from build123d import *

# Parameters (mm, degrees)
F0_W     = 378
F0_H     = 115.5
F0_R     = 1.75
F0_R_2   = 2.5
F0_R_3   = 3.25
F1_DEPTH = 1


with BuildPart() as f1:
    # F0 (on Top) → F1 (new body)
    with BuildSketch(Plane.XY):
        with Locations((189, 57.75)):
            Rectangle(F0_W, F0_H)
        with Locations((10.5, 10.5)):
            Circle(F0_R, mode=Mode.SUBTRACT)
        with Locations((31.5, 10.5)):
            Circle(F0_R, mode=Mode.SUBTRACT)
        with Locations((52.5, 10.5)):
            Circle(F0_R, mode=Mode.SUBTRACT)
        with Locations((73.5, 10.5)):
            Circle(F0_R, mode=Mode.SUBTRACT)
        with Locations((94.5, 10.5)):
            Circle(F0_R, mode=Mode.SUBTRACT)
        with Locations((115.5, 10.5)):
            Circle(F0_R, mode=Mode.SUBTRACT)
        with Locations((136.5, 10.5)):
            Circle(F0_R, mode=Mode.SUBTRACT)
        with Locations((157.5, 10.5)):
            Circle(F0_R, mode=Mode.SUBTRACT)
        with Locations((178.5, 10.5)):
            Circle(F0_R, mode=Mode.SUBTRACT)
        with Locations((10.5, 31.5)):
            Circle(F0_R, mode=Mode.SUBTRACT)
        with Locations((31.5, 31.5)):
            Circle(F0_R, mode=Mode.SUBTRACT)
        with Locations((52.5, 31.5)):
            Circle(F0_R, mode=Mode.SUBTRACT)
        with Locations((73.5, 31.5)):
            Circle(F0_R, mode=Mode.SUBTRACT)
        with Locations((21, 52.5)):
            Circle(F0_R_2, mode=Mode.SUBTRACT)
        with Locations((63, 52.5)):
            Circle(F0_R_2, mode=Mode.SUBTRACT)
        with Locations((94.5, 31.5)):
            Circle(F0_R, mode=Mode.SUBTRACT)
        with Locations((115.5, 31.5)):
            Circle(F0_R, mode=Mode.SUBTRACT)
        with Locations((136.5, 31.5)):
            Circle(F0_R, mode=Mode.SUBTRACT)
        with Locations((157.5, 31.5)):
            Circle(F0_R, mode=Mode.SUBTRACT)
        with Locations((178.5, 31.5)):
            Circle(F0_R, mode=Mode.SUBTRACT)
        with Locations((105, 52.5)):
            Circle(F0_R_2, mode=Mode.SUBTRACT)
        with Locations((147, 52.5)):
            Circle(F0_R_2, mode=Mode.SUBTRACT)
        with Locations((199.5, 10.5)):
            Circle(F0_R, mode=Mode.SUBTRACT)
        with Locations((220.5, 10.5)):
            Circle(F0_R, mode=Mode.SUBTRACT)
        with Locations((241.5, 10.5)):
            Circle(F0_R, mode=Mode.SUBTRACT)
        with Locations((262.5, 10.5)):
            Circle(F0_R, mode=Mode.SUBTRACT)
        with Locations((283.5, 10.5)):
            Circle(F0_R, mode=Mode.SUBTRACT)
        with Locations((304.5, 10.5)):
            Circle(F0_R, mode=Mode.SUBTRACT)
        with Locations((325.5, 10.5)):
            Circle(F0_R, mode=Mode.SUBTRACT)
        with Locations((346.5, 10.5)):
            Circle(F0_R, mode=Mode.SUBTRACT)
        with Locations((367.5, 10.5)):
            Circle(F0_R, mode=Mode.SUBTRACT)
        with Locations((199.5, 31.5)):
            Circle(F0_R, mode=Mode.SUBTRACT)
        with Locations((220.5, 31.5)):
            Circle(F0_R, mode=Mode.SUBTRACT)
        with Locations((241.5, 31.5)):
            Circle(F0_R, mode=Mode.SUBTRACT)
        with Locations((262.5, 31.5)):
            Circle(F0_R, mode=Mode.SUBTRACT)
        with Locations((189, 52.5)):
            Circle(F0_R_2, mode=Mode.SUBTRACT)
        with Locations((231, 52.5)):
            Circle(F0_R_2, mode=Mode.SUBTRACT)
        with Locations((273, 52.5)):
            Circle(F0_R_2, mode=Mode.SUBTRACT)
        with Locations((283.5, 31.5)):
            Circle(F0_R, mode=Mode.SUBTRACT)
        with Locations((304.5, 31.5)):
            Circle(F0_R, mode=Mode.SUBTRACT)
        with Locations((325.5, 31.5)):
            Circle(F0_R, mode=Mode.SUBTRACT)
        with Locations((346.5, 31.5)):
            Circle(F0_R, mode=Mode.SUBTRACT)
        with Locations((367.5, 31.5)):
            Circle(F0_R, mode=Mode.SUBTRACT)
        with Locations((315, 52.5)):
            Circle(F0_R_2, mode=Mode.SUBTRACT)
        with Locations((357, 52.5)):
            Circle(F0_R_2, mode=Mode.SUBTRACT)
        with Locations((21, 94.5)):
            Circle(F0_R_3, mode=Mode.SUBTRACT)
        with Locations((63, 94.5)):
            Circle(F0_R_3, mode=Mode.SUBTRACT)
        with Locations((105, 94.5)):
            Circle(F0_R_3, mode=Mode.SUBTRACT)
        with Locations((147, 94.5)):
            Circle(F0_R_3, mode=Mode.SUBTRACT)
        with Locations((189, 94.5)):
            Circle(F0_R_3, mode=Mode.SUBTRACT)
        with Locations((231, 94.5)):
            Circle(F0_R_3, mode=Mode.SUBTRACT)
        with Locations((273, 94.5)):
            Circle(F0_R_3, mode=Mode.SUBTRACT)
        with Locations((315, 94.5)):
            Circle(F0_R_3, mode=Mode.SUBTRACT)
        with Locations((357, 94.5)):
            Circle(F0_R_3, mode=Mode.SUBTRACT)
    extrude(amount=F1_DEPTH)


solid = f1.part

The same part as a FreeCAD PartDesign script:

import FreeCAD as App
import Part
import Sketcher

doc = App.newDocument("Part")
params = doc.addObject("Spreadsheet::Sheet", "Params")
for row, (alias, value) in enumerate([
    ("sketch1_diameter", "5 mm"),
    ("sketch1_diameter2", "3.5 mm"),
    ("sketch1_diameter3", "6.5 mm"),
    ("sketch1_width", "378 mm"),
    ("sketch1_height", "115.5 mm"),
    ("pad1_length", "1 mm"),
], start=1):
    params.set(f"A{row}", alias)
    params.set(f"B{row}", "=" + value)
    params.setAlias(f"B{row}", alias)

body = doc.addObject("PartDesign::Body", "Body")

sketch1 = body.newObject("Sketcher::SketchObject", "Sketch")
sketch1.AttachmentSupport = (doc.getObject("XY_Plane"), [""])
sketch1.MapMode = "FlatFace"
sketch1.addGeometry(Part.LineSegment(App.Vector(0, 115.5, 0), App.Vector(0, 0, 0)), False)
sketch1.addGeometry(Part.LineSegment(App.Vector(0, 0, 0), App.Vector(378, 0, 0)), False)
sketch1.addGeometry(Part.LineSegment(App.Vector(378, 0, 0), App.Vector(378, 115.5, 0)), False)
sketch1.addGeometry(Part.LineSegment(App.Vector(378, 115.5, 0), App.Vector(0, 115.5, 0)), False)
sketch1.addGeometry(Part.Circle(App.Vector(10.5, 10.5, 0), App.Vector(0, 0, 1), 1.75), False)
sketch1.addGeometry(Part.Circle(App.Vector(31.5, 10.5, 0), App.Vector(0, 0, 1), 1.75), False)
sketch1.addGeometry(Part.Circle(App.Vector(52.5, 10.5, 0), App.Vector(0, 0, 1), 1.75), False)
sketch1.addGeometry(Part.Circle(App.Vector(73.5, 10.5, 0), App.Vector(0, 0, 1), 1.75), False)
sketch1.addGeometry(Part.Circle(App.Vector(94.5, 10.5, 0), App.Vector(0, 0, 1), 1.75), False)
sketch1.addGeometry(Part.Circle(App.Vector(115.5, 10.5, 0), App.Vector(0, 0, 1), 1.75), False)
sketch1.addGeometry(Part.Circle(App.Vector(136.5, 10.5, 0), App.Vector(0, 0, 1), 1.75), False)
sketch1.addGeometry(Part.Circle(App.Vector(157.5, 10.5, 0), App.Vector(0, 0, 1), 1.75), False)
sketch1.addGeometry(Part.Circle(App.Vector(178.5, 10.5, 0), App.Vector(0, 0, 1), 1.75), False)
sketch1.addGeometry(Part.Circle(App.Vector(10.5, 31.5, 0), App.Vector(0, 0, 1), 1.75), False)
sketch1.addGeometry(Part.Circle(App.Vector(31.5, 31.5, 0), App.Vector(0, 0, 1), 1.75), False)
sketch1.addGeometry(Part.Circle(App.Vector(52.5, 31.5, 0), App.Vector(0, 0, 1), 1.75), False)
sketch1.addGeometry(Part.Circle(App.Vector(73.5, 31.5, 0), App.Vector(0, 0, 1), 1.75), False)
sketch1.addGeometry(Part.Circle(App.Vector(94.5, 31.5, 0), App.Vector(0, 0, 1), 1.75), False)
sketch1.addGeometry(Part.Circle(App.Vector(21, 52.5, 0), App.Vector(0, 0, 1), 2.5), False)
sketch1.addGeometry(Part.Circle(App.Vector(63, 52.5, 0), App.Vector(0, 0, 1), 2.5), False)
sketch1.addGeometry(Part.Circle(App.Vector(115.5, 31.5, 0), App.Vector(0, 0, 1), 1.75), False)
sketch1.addGeometry(Part.Circle(App.Vector(136.5, 31.5, 0), App.Vector(0, 0, 1), 1.75), False)
sketch1.addGeometry(Part.Circle(App.Vector(157.5, 31.5, 0), App.Vector(0, 0, 1), 1.75), False)
sketch1.addGeometry(Part.Circle(App.Vector(178.5, 31.5, 0), App.Vector(0, 0, 1), 1.75), False)
sketch1.addGeometry(Part.Circle(App.Vector(105, 52.5, 0), App.Vector(0, 0, 1), 2.5), False)
sketch1.addGeometry(Part.Circle(App.Vector(147, 52.5, 0), App.Vector(0, 0, 1), 2.5), False)
sketch1.addGeometry(Part.Circle(App.Vector(199.5, 10.5, 0), App.Vector(0, 0, 1), 1.75), False)
sketch1.addGeometry(Part.Circle(App.Vector(220.5, 10.5, 0), App.Vector(0, 0, 1), 1.75), False)
sketch1.addGeometry(Part.Circle(App.Vector(241.5, 10.5, 0), App.Vector(0, 0, 1), 1.75), False)
sketch1.addGeometry(Part.Circle(App.Vector(262.5, 10.5, 0), App.Vector(0, 0, 1), 1.75), False)
sketch1.addGeometry(Part.Circle(App.Vector(283.5, 10.5, 0), App.Vector(0, 0, 1), 1.75), False)
sketch1.addGeometry(Part.Circle(App.Vector(304.5, 10.5, 0), App.Vector(0, 0, 1), 1.75), False)
sketch1.addGeometry(Part.Circle(App.Vector(325.5, 10.5, 0), App.Vector(0, 0, 1), 1.75), False)
sketch1.addGeometry(Part.Circle(App.Vector(346.5, 10.5, 0), App.Vector(0, 0, 1), 1.75), False)
sketch1.addGeometry(Part.Circle(App.Vector(367.5, 10.5, 0), App.Vector(0, 0, 1), 1.75), False)
sketch1.addGeometry(Part.Circle(App.Vector(199.5, 31.5, 0), App.Vector(0, 0, 1), 1.75), False)
sketch1.addGeometry(Part.Circle(App.Vector(220.5, 31.5, 0), App.Vector(0, 0, 1), 1.75), False)
sketch1.addGeometry(Part.Circle(App.Vector(241.5, 31.5, 0), App.Vector(0, 0, 1), 1.75), False)
sketch1.addGeometry(Part.Circle(App.Vector(262.5, 31.5, 0), App.Vector(0, 0, 1), 1.75), False)
sketch1.addGeometry(Part.Circle(App.Vector(189, 52.5, 0), App.Vector(0, 0, 1), 2.5), False)
sketch1.addGeometry(Part.Circle(App.Vector(231, 52.5, 0), App.Vector(0, 0, 1), 2.5), False)
sketch1.addGeometry(Part.Circle(App.Vector(273, 52.5, 0), App.Vector(0, 0, 1), 2.5), False)
sketch1.addGeometry(Part.Circle(App.Vector(283.5, 31.5, 0), App.Vector(0, 0, 1), 1.75), False)
sketch1.addGeometry(Part.Circle(App.Vector(304.5, 31.5, 0), App.Vector(0, 0, 1), 1.75), False)
sketch1.addGeometry(Part.Circle(App.Vector(325.5, 31.5, 0), App.Vector(0, 0, 1), 1.75), False)
sketch1.addGeometry(Part.Circle(App.Vector(346.5, 31.5, 0), App.Vector(0, 0, 1), 1.75), False)
sketch1.addGeometry(Part.Circle(App.Vector(367.5, 31.5, 0), App.Vector(0, 0, 1), 1.75), False)
sketch1.addGeometry(Part.Circle(App.Vector(315, 52.5, 0), App.Vector(0, 0, 1), 2.5), False)
sketch1.addGeometry(Part.Circle(App.Vector(357, 52.5, 0), App.Vector(0, 0, 1), 2.5), False)
sketch1.addGeometry(Part.Circle(App.Vector(21, 94.5, 0), App.Vector(0, 0, 1), 3.25), False)
sketch1.addGeometry(Part.Circle(App.Vector(63, 94.5, 0), App.Vector(0, 0, 1), 3.25), False)
sketch1.addGeometry(Part.Circle(App.Vector(105, 94.5, 0), App.Vector(0, 0, 1), 3.25), False)
sketch1.addGeometry(Part.Circle(App.Vector(147, 94.5, 0), App.Vector(0, 0, 1), 3.25), False)
sketch1.addGeometry(Part.Circle(App.Vector(189, 94.5, 0), App.Vector(0, 0, 1), 3.25), False)
sketch1.addGeometry(Part.Circle(App.Vector(231, 94.5, 0), App.Vector(0, 0, 1), 3.25), False)
sketch1.addGeometry(Part.Circle(App.Vector(273, 94.5, 0), App.Vector(0, 0, 1), 3.25), False)
sketch1.addGeometry(Part.Circle(App.Vector(315, 94.5, 0), App.Vector(0, 0, 1), 3.25), False)
sketch1.addGeometry(Part.Circle(App.Vector(357, 94.5, 0), App.Vector(0, 0, 1), 3.25), False)
sketch1.addConstraint(Sketcher.Constraint("Coincident", 0, 2, 1, 1))
sketch1.addConstraint(Sketcher.Constraint("Coincident", 1, 2, 2, 1))
sketch1.addConstraint(Sketcher.Constraint("Coincident", 2, 2, 3, 1))
sketch1.addConstraint(Sketcher.Constraint("Coincident", 3, 2, 0, 1))
sketch1.addConstraint(Sketcher.Constraint("Vertical", 0))
sketch1.addConstraint(Sketcher.Constraint("Horizontal", 1))
sketch1.addConstraint(Sketcher.Constraint("Vertical", 2))
sketch1.addConstraint(Sketcher.Constraint("Horizontal", 3))
sketch1.addConstraint(Sketcher.Constraint("Coincident", 0, 2, -1, 1))
sketch1.addConstraint(Sketcher.Constraint("Equal", 4, 5))
sketch1.addConstraint(Sketcher.Constraint("Equal", 5, 6))
sketch1.addConstraint(Sketcher.Constraint("Equal", 6, 7))
sketch1.addConstraint(Sketcher.Constraint("Equal", 7, 8))
sketch1.addConstraint(Sketcher.Constraint("Equal", 8, 9))
sketch1.addConstraint(Sketcher.Constraint("Equal", 9, 10))
sketch1.addConstraint(Sketcher.Constraint("Equal", 10, 11))
sketch1.addConstraint(Sketcher.Constraint("Equal", 11, 12))
sketch1.addConstraint(Sketcher.Constraint("Equal", 12, 13))
sketch1.addConstraint(Sketcher.Constraint("Equal", 13, 14))
sketch1.addConstraint(Sketcher.Constraint("Equal", 14, 15))
sketch1.addConstraint(Sketcher.Constraint("Equal", 15, 16))
sketch1.addConstraint(Sketcher.Constraint("Equal", 16, 17))
sketch1.addConstraint(Sketcher.Constraint("Equal", 18, 19))
sketch1.addConstraint(Sketcher.Constraint("Equal", 17, 20))
sketch1.addConstraint(Sketcher.Constraint("Equal", 20, 21))
sketch1.addConstraint(Sketcher.Constraint("Equal", 21, 22))
sketch1.addConstraint(Sketcher.Constraint("Equal", 22, 23))
sketch1.addConstraint(Sketcher.Constraint("Equal", 19, 24))
sketch1.addConstraint(Sketcher.Constraint("Equal", 24, 25))
sketch1.addConstraint(Sketcher.Constraint("Equal", 23, 26))
sketch1.addConstraint(Sketcher.Constraint("Equal", 26, 27))
sketch1.addConstraint(Sketcher.Constraint("Equal", 27, 28))
sketch1.addConstraint(Sketcher.Constraint("Equal", 28, 29))
sketch1.addConstraint(Sketcher.Constraint("Equal", 29, 30))
sketch1.addConstraint(Sketcher.Constraint("Equal", 30, 31))
sketch1.addConstraint(Sketcher.Constraint("Equal", 31, 32))
sketch1.addConstraint(Sketcher.Constraint("Equal", 32, 33))
sketch1.addConstraint(Sketcher.Constraint("Equal", 33, 34))
sketch1.addConstraint(Sketcher.Constraint("Equal", 34, 35))
sketch1.addConstraint(Sketcher.Constraint("Equal", 35, 36))
sketch1.addConstraint(Sketcher.Constraint("Equal", 36, 37))
sketch1.addConstraint(Sketcher.Constraint("Equal", 37, 38))
sketch1.addConstraint(Sketcher.Constraint("Equal", 25, 39))
sketch1.addConstraint(Sketcher.Constraint("Equal", 39, 40))
sketch1.addConstraint(Sketcher.Constraint("Equal", 40, 41))
sketch1.addConstraint(Sketcher.Constraint("Equal", 38, 42))
sketch1.addConstraint(Sketcher.Constraint("Equal", 42, 43))
sketch1.addConstraint(Sketcher.Constraint("Equal", 43, 44))
sketch1.addConstraint(Sketcher.Constraint("Equal", 44, 45))
sketch1.addConstraint(Sketcher.Constraint("Equal", 45, 46))
sketch1.addConstraint(Sketcher.Constraint("Equal", 41, 47))
sketch1.addConstraint(Sketcher.Constraint("Equal", 47, 48))
sketch1.addConstraint(Sketcher.Constraint("Equal", 49, 50))
sketch1.addConstraint(Sketcher.Constraint("Equal", 50, 51))
sketch1.addConstraint(Sketcher.Constraint("Equal", 51, 52))
sketch1.addConstraint(Sketcher.Constraint("Equal", 52, 53))
sketch1.addConstraint(Sketcher.Constraint("Equal", 53, 54))
sketch1.addConstraint(Sketcher.Constraint("Equal", 54, 55))
sketch1.addConstraint(Sketcher.Constraint("Equal", 55, 56))
sketch1.addConstraint(Sketcher.Constraint("Equal", 56, 57))
sketch1.addConstraint(Sketcher.Constraint("Horizontal", 4, 3, 5, 3))
sketch1.addConstraint(Sketcher.Constraint("Horizontal", 5, 3, 6, 3))
sketch1.addConstraint(Sketcher.Constraint("Horizontal", 6, 3, 7, 3))
sketch1.addConstraint(Sketcher.Constraint("Horizontal", 7, 3, 8, 3))
sketch1.addConstraint(Sketcher.Constraint("Horizontal", 8, 3, 9, 3))
sketch1.addConstraint(Sketcher.Constraint("Horizontal", 9, 3, 10, 3))
sketch1.addConstraint(Sketcher.Constraint("Horizontal", 10, 3, 11, 3))
sketch1.addConstraint(Sketcher.Constraint("Horizontal", 11, 3, 12, 3))
sketch1.addConstraint(Sketcher.Constraint("Horizontal", 13, 3, 14, 3))
sketch1.addConstraint(Sketcher.Constraint("Horizontal", 14, 3, 15, 3))
sketch1.addConstraint(Sketcher.Constraint("Horizontal", 15, 3, 16, 3))
sketch1.addConstraint(Sketcher.Constraint("Horizontal", 16, 3, 17, 3))
sketch1.addConstraint(Sketcher.Constraint("Horizontal", 18, 3, 19, 3))
sketch1.addConstraint(Sketcher.Constraint("Horizontal", 17, 3, 20, 3))
sketch1.addConstraint(Sketcher.Constraint("Horizontal", 20, 3, 21, 3))
sketch1.addConstraint(Sketcher.Constraint("Horizontal", 21, 3, 22, 3))
sketch1.addConstraint(Sketcher.Constraint("Horizontal", 22, 3, 23, 3))
sketch1.addConstraint(Sketcher.Constraint("Horizontal", 19, 3, 24, 3))
sketch1.addConstraint(Sketcher.Constraint("Horizontal", 24, 3, 25, 3))
sketch1.addConstraint(Sketcher.Constraint("Horizontal", 12, 3, 26, 3))
sketch1.addConstraint(Sketcher.Constraint("Horizontal", 26, 3, 27, 3))
sketch1.addConstraint(Sketcher.Constraint("Horizontal", 27, 3, 28, 3))
sketch1.addConstraint(Sketcher.Constraint("Horizontal", 28, 3, 29, 3))
sketch1.addConstraint(Sketcher.Constraint("Horizontal", 29, 3, 30, 3))
sketch1.addConstraint(Sketcher.Constraint("Horizontal", 30, 3, 31, 3))
sketch1.addConstraint(Sketcher.Constraint("Horizontal", 31, 3, 32, 3))
sketch1.addConstraint(Sketcher.Constraint("Horizontal", 32, 3, 33, 3))
sketch1.addConstraint(Sketcher.Constraint("Horizontal", 33, 3, 34, 3))
sketch1.addConstraint(Sketcher.Constraint("Horizontal", 23, 3, 35, 3))
sketch1.addConstraint(Sketcher.Constraint("Horizontal", 35, 3, 36, 3))
sketch1.addConstraint(Sketcher.Constraint("Horizontal", 36, 3, 37, 3))
sketch1.addConstraint(Sketcher.Constraint("Horizontal", 37, 3, 38, 3))
sketch1.addConstraint(Sketcher.Constraint("Horizontal", 25, 3, 39, 3))
sketch1.addConstraint(Sketcher.Constraint("Horizontal", 39, 3, 40, 3))
sketch1.addConstraint(Sketcher.Constraint("Horizontal", 40, 3, 41, 3))
sketch1.addConstraint(Sketcher.Constraint("Horizontal", 38, 3, 42, 3))
sketch1.addConstraint(Sketcher.Constraint("Horizontal", 42, 3, 43, 3))
sketch1.addConstraint(Sketcher.Constraint("Horizontal", 43, 3, 44, 3))
sketch1.addConstraint(Sketcher.Constraint("Horizontal", 44, 3, 45, 3))
sketch1.addConstraint(Sketcher.Constraint("Horizontal", 45, 3, 46, 3))
sketch1.addConstraint(Sketcher.Constraint("Horizontal", 41, 3, 47, 3))
sketch1.addConstraint(Sketcher.Constraint("Horizontal", 47, 3, 48, 3))
sketch1.addConstraint(Sketcher.Constraint("Horizontal", 49, 3, 50, 3))
sketch1.addConstraint(Sketcher.Constraint("Horizontal", 50, 3, 51, 3))
sketch1.addConstraint(Sketcher.Constraint("Horizontal", 51, 3, 52, 3))
sketch1.addConstraint(Sketcher.Constraint("Horizontal", 52, 3, 53, 3))
sketch1.addConstraint(Sketcher.Constraint("Horizontal", 53, 3, 54, 3))
sketch1.addConstraint(Sketcher.Constraint("Horizontal", 54, 3, 55, 3))
sketch1.addConstraint(Sketcher.Constraint("Horizontal", 55, 3, 56, 3))
sketch1.addConstraint(Sketcher.Constraint("Horizontal", 56, 3, 57, 3))
sketch1.addConstraint(Sketcher.Constraint("Vertical", 4, 3, 13, 3))
sketch1.addConstraint(Sketcher.Constraint("Vertical", 5, 3, 14, 3))
sketch1.addConstraint(Sketcher.Constraint("Vertical", 6, 3, 15, 3))
sketch1.addConstraint(Sketcher.Constraint("Vertical", 7, 3, 16, 3))
sketch1.addConstraint(Sketcher.Constraint("Vertical", 8, 3, 17, 3))
sketch1.addConstraint(Sketcher.Constraint("Vertical", 9, 3, 20, 3))
sketch1.addConstraint(Sketcher.Constraint("Vertical", 10, 3, 21, 3))
sketch1.addConstraint(Sketcher.Constraint("Vertical", 11, 3, 22, 3))
sketch1.addConstraint(Sketcher.Constraint("Vertical", 12, 3, 23, 3))
sketch1.addConstraint(Sketcher.Constraint("Vertical", 26, 3, 35, 3))
sketch1.addConstraint(Sketcher.Constraint("Vertical", 27, 3, 36, 3))
sketch1.addConstraint(Sketcher.Constraint("Vertical", 28, 3, 37, 3))
sketch1.addConstraint(Sketcher.Constraint("Vertical", 29, 3, 38, 3))
sketch1.addConstraint(Sketcher.Constraint("Vertical", 30, 3, 42, 3))
sketch1.addConstraint(Sketcher.Constraint("Vertical", 31, 3, 43, 3))
sketch1.addConstraint(Sketcher.Constraint("Vertical", 32, 3, 44, 3))
sketch1.addConstraint(Sketcher.Constraint("Vertical", 33, 3, 45, 3))
sketch1.addConstraint(Sketcher.Constraint("Vertical", 34, 3, 46, 3))
sketch1.addConstraint(Sketcher.Constraint("Vertical", 18, 3, 49, 3))
sketch1.addConstraint(Sketcher.Constraint("Vertical", 19, 3, 50, 3))
sketch1.addConstraint(Sketcher.Constraint("Vertical", 24, 3, 51, 3))
sketch1.addConstraint(Sketcher.Constraint("Vertical", 25, 3, 52, 3))
sketch1.addConstraint(Sketcher.Constraint("Vertical", 39, 3, 53, 3))
sketch1.addConstraint(Sketcher.Constraint("Vertical", 40, 3, 54, 3))
sketch1.addConstraint(Sketcher.Constraint("Vertical", 41, 3, 55, 3))
sketch1.addConstraint(Sketcher.Constraint("Vertical", 47, 3, 56, 3))
sketch1.addConstraint(Sketcher.Constraint("Vertical", 48, 3, 57, 3))
sketch1.addConstraint(Sketcher.Constraint("Diameter", 18, 5.0))
sketch1.addConstraint(Sketcher.Constraint("Diameter", 4, 3.5))
sketch1.addConstraint(Sketcher.Constraint("Diameter", 49, 6.5))
sketch1.addConstraint(Sketcher.Constraint("DistanceX", 1, 1, 1, 2, 378.0))
sketch1.addConstraint(Sketcher.Constraint("DistanceY", 0, 2, 0, 1, 115.5))
sketch1.addConstraint(Sketcher.Constraint("DistanceX", -1, 1, 18, 3, 21.0))
sketch1.addConstraint(Sketcher.Constraint("DistanceX", -1, 1, 19, 3, 63.0))
sketch1.addConstraint(Sketcher.Constraint("DistanceX", -1, 1, 24, 3, 105.0))
sketch1.addConstraint(Sketcher.Constraint("DistanceX", -1, 1, 25, 3, 147.0))
sketch1.addConstraint(Sketcher.Constraint("DistanceX", -1, 1, 39, 3, 189.0))
sketch1.addConstraint(Sketcher.Constraint("DistanceX", -1, 1, 40, 3, 231.0))
sketch1.addConstraint(Sketcher.Constraint("DistanceX", -1, 1, 41, 3, 273.0))
sketch1.addConstraint(Sketcher.Constraint("DistanceX", -1, 1, 47, 3, 315.0))
sketch1.addConstraint(Sketcher.Constraint("DistanceX", -1, 1, 48, 3, 357.0))
sketch1.addConstraint(Sketcher.Constraint("DistanceX", 4, 3, 5, 3, 21.0))
sketch1.addConstraint(Sketcher.Constraint("DistanceX", 5, 3, 6, 3, 21.0))
sketch1.addConstraint(Sketcher.Constraint("DistanceX", 6, 3, 7, 3, 21.0))
sketch1.addConstraint(Sketcher.Constraint("DistanceX", 7, 3, 8, 3, 21.0))
sketch1.addConstraint(Sketcher.Constraint("DistanceX", 8, 3, 9, 3, 21.0))
sketch1.addConstraint(Sketcher.Constraint("DistanceX", 9, 3, 10, 3, 21.0))
sketch1.addConstraint(Sketcher.Constraint("DistanceX", 10, 3, 11, 3, 21.0))
sketch1.addConstraint(Sketcher.Constraint("DistanceX", 11, 3, 12, 3, 21.0))
sketch1.addConstraint(Sketcher.Constraint("DistanceY", 4, 3, 13, 3, 21.0))
sketch1.addConstraint(Sketcher.Constraint("DistanceY", 13, 3, 18, 3, 21.0))
sketch1.addConstraint(Sketcher.Constraint("DistanceX", 12, 3, 26, 3, 21.0))
sketch1.addConstraint(Sketcher.Constraint("DistanceX", 26, 3, 27, 3, 21.0))
sketch1.addConstraint(Sketcher.Constraint("DistanceX", 27, 3, 28, 3, 21.0))
sketch1.addConstraint(Sketcher.Constraint("DistanceX", 28, 3, 29, 3, 21.0))
sketch1.addConstraint(Sketcher.Constraint("DistanceX", 29, 3, 30, 3, 21.0))
sketch1.addConstraint(Sketcher.Constraint("DistanceX", 30, 3, 31, 3, 21.0))
sketch1.addConstraint(Sketcher.Constraint("DistanceX", 31, 3, 32, 3, 21.0))
sketch1.addConstraint(Sketcher.Constraint("DistanceX", 32, 3, 33, 3, 21.0))
sketch1.addConstraint(Sketcher.Constraint("DistanceX", 33, 3, 34, 3, 21.0))
sketch1.addConstraint(Sketcher.Constraint("DistanceY", 18, 3, 49, 3, 42.0))
sketch1.addConstraint(Sketcher.Constraint("DistanceY", 57, 3, 2, 2, 21.0))
sketch1.addConstraint(Sketcher.Constraint("DistanceX", -1, 1, 4, 3, 10.5))
sketch1.setExpression("Constraints[137]", "Params.sketch1_diameter")
sketch1.setExpression("Constraints[138]", "Params.sketch1_diameter2")
sketch1.setExpression("Constraints[139]", "Params.sketch1_diameter3")
sketch1.setExpression("Constraints[140]", "Params.sketch1_width")
sketch1.setExpression("Constraints[141]", "Params.sketch1_height")
pad1 = body.newObject("PartDesign::Pad", "Pad")
pad1.Profile = sketch1
pad1.setExpression("Length", "Params.pad1_length")

doc.recompute()
